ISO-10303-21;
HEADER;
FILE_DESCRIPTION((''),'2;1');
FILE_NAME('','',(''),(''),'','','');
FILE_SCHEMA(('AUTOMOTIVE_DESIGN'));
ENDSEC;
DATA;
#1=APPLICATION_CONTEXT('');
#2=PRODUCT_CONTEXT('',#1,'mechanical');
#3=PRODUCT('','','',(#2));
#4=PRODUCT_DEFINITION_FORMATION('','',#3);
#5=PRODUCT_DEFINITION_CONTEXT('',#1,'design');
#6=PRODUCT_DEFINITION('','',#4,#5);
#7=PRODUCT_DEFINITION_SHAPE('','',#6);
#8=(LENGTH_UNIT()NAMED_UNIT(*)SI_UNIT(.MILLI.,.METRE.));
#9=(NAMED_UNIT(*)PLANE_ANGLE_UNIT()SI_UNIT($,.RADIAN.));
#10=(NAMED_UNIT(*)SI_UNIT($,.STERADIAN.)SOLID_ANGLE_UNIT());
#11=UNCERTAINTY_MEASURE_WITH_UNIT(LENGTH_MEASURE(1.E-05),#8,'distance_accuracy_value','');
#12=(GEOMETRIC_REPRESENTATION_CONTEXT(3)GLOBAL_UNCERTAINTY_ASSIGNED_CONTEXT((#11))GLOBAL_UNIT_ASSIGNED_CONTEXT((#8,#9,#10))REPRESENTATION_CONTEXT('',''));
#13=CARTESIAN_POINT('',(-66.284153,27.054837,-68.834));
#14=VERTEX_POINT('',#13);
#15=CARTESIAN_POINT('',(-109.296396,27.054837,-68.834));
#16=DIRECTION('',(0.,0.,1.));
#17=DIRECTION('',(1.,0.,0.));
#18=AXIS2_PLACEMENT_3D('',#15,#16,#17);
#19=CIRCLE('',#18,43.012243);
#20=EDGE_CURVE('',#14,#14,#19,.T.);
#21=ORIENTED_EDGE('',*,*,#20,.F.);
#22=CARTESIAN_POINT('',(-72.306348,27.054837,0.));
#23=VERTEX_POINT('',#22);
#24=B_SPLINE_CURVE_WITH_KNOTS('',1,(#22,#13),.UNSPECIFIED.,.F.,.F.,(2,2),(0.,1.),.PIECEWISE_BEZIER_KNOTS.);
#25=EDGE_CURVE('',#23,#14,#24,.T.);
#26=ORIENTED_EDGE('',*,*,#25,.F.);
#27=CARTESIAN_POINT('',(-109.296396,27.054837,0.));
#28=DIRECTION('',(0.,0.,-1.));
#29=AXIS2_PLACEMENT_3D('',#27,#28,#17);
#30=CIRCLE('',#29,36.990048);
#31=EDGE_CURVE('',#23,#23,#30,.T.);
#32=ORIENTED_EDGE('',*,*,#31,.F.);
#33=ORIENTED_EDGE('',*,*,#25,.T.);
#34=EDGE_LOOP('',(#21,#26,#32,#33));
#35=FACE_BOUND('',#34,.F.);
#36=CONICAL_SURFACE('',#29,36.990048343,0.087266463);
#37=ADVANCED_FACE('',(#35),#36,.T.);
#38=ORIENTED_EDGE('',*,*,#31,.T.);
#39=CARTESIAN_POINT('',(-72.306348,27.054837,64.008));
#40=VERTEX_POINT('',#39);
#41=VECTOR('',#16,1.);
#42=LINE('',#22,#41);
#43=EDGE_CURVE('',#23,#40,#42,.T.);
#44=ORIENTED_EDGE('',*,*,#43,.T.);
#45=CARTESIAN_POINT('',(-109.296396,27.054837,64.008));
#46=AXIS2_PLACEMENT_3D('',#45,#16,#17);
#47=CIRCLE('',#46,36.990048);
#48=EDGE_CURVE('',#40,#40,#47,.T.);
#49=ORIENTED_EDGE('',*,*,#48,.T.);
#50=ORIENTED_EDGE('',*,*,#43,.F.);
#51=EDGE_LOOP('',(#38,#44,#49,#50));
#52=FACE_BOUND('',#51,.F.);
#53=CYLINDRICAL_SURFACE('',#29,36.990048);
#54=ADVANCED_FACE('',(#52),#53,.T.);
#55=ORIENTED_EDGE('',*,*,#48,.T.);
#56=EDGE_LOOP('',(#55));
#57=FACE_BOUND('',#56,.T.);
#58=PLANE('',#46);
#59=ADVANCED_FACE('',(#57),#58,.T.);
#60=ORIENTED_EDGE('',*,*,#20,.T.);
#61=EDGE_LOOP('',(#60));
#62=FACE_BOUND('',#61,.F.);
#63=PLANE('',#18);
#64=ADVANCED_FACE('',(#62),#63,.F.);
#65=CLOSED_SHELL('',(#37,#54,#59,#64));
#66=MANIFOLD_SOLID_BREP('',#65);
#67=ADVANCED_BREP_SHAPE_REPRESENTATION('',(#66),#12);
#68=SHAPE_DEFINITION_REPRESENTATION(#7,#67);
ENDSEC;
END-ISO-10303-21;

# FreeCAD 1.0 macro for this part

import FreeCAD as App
import Part
import Sketcher
Q = App.Units.Quantity

doc = App.newDocument("Part")
params = doc.addObject("Spreadsheet::Sheet", "Params")
for row, (alias, value) in enumerate([
    ("pad1_length", "2.71 in"),
    ("pad1_taper", "5 deg"),
    ("pad2_length", "2.52 in"),
], start=1):
    params.set(f"A{row}", alias)
    params.set(f"B{row}", "=" + value)
    params.setAlias(f"B{row}", alias)

body = doc.addObject("PartDesign::Body", "Body")

# Sketch on XY plane
sketch1 = body.newObject("Sketcher::SketchObject", "Sketch")
sketch1.AttachmentSupport = (doc.getObject("XY_Plane"), [""])
sketch1.MapMode = "FlatFace"
sketch1.addGeometry(Part.Circle(App.Vector(-109, 27, 0), App.Vector(0, 0, 1), 37), False)
sketch1.addConstraint(Sketcher.Constraint("Diameter", 0, Q("73.980097 mm")))
sketch1.addConstraint(Sketcher.Constraint("DistanceX", 0, 3, -1, 1, Q("109.296396 mm")))
sketch1.addConstraint(Sketcher.Constraint("DistanceY", -1, 1, 0, 3, Q("27.054837 mm")))
pad1 = body.newObject("PartDesign::Pad", "Pad")
pad1.Profile = sketch1
pad1.setExpression("Length", "Params.pad1_length")
pad1.Reversed = True
pad1.setExpression("TaperAngle", "Params.pad1_taper")
pad2 = body.newObject("PartDesign::Pad", "Pad001")
pad2.Profile = sketch1
pad2.setExpression("Length", "Params.pad2_length")

doc.recompute()
